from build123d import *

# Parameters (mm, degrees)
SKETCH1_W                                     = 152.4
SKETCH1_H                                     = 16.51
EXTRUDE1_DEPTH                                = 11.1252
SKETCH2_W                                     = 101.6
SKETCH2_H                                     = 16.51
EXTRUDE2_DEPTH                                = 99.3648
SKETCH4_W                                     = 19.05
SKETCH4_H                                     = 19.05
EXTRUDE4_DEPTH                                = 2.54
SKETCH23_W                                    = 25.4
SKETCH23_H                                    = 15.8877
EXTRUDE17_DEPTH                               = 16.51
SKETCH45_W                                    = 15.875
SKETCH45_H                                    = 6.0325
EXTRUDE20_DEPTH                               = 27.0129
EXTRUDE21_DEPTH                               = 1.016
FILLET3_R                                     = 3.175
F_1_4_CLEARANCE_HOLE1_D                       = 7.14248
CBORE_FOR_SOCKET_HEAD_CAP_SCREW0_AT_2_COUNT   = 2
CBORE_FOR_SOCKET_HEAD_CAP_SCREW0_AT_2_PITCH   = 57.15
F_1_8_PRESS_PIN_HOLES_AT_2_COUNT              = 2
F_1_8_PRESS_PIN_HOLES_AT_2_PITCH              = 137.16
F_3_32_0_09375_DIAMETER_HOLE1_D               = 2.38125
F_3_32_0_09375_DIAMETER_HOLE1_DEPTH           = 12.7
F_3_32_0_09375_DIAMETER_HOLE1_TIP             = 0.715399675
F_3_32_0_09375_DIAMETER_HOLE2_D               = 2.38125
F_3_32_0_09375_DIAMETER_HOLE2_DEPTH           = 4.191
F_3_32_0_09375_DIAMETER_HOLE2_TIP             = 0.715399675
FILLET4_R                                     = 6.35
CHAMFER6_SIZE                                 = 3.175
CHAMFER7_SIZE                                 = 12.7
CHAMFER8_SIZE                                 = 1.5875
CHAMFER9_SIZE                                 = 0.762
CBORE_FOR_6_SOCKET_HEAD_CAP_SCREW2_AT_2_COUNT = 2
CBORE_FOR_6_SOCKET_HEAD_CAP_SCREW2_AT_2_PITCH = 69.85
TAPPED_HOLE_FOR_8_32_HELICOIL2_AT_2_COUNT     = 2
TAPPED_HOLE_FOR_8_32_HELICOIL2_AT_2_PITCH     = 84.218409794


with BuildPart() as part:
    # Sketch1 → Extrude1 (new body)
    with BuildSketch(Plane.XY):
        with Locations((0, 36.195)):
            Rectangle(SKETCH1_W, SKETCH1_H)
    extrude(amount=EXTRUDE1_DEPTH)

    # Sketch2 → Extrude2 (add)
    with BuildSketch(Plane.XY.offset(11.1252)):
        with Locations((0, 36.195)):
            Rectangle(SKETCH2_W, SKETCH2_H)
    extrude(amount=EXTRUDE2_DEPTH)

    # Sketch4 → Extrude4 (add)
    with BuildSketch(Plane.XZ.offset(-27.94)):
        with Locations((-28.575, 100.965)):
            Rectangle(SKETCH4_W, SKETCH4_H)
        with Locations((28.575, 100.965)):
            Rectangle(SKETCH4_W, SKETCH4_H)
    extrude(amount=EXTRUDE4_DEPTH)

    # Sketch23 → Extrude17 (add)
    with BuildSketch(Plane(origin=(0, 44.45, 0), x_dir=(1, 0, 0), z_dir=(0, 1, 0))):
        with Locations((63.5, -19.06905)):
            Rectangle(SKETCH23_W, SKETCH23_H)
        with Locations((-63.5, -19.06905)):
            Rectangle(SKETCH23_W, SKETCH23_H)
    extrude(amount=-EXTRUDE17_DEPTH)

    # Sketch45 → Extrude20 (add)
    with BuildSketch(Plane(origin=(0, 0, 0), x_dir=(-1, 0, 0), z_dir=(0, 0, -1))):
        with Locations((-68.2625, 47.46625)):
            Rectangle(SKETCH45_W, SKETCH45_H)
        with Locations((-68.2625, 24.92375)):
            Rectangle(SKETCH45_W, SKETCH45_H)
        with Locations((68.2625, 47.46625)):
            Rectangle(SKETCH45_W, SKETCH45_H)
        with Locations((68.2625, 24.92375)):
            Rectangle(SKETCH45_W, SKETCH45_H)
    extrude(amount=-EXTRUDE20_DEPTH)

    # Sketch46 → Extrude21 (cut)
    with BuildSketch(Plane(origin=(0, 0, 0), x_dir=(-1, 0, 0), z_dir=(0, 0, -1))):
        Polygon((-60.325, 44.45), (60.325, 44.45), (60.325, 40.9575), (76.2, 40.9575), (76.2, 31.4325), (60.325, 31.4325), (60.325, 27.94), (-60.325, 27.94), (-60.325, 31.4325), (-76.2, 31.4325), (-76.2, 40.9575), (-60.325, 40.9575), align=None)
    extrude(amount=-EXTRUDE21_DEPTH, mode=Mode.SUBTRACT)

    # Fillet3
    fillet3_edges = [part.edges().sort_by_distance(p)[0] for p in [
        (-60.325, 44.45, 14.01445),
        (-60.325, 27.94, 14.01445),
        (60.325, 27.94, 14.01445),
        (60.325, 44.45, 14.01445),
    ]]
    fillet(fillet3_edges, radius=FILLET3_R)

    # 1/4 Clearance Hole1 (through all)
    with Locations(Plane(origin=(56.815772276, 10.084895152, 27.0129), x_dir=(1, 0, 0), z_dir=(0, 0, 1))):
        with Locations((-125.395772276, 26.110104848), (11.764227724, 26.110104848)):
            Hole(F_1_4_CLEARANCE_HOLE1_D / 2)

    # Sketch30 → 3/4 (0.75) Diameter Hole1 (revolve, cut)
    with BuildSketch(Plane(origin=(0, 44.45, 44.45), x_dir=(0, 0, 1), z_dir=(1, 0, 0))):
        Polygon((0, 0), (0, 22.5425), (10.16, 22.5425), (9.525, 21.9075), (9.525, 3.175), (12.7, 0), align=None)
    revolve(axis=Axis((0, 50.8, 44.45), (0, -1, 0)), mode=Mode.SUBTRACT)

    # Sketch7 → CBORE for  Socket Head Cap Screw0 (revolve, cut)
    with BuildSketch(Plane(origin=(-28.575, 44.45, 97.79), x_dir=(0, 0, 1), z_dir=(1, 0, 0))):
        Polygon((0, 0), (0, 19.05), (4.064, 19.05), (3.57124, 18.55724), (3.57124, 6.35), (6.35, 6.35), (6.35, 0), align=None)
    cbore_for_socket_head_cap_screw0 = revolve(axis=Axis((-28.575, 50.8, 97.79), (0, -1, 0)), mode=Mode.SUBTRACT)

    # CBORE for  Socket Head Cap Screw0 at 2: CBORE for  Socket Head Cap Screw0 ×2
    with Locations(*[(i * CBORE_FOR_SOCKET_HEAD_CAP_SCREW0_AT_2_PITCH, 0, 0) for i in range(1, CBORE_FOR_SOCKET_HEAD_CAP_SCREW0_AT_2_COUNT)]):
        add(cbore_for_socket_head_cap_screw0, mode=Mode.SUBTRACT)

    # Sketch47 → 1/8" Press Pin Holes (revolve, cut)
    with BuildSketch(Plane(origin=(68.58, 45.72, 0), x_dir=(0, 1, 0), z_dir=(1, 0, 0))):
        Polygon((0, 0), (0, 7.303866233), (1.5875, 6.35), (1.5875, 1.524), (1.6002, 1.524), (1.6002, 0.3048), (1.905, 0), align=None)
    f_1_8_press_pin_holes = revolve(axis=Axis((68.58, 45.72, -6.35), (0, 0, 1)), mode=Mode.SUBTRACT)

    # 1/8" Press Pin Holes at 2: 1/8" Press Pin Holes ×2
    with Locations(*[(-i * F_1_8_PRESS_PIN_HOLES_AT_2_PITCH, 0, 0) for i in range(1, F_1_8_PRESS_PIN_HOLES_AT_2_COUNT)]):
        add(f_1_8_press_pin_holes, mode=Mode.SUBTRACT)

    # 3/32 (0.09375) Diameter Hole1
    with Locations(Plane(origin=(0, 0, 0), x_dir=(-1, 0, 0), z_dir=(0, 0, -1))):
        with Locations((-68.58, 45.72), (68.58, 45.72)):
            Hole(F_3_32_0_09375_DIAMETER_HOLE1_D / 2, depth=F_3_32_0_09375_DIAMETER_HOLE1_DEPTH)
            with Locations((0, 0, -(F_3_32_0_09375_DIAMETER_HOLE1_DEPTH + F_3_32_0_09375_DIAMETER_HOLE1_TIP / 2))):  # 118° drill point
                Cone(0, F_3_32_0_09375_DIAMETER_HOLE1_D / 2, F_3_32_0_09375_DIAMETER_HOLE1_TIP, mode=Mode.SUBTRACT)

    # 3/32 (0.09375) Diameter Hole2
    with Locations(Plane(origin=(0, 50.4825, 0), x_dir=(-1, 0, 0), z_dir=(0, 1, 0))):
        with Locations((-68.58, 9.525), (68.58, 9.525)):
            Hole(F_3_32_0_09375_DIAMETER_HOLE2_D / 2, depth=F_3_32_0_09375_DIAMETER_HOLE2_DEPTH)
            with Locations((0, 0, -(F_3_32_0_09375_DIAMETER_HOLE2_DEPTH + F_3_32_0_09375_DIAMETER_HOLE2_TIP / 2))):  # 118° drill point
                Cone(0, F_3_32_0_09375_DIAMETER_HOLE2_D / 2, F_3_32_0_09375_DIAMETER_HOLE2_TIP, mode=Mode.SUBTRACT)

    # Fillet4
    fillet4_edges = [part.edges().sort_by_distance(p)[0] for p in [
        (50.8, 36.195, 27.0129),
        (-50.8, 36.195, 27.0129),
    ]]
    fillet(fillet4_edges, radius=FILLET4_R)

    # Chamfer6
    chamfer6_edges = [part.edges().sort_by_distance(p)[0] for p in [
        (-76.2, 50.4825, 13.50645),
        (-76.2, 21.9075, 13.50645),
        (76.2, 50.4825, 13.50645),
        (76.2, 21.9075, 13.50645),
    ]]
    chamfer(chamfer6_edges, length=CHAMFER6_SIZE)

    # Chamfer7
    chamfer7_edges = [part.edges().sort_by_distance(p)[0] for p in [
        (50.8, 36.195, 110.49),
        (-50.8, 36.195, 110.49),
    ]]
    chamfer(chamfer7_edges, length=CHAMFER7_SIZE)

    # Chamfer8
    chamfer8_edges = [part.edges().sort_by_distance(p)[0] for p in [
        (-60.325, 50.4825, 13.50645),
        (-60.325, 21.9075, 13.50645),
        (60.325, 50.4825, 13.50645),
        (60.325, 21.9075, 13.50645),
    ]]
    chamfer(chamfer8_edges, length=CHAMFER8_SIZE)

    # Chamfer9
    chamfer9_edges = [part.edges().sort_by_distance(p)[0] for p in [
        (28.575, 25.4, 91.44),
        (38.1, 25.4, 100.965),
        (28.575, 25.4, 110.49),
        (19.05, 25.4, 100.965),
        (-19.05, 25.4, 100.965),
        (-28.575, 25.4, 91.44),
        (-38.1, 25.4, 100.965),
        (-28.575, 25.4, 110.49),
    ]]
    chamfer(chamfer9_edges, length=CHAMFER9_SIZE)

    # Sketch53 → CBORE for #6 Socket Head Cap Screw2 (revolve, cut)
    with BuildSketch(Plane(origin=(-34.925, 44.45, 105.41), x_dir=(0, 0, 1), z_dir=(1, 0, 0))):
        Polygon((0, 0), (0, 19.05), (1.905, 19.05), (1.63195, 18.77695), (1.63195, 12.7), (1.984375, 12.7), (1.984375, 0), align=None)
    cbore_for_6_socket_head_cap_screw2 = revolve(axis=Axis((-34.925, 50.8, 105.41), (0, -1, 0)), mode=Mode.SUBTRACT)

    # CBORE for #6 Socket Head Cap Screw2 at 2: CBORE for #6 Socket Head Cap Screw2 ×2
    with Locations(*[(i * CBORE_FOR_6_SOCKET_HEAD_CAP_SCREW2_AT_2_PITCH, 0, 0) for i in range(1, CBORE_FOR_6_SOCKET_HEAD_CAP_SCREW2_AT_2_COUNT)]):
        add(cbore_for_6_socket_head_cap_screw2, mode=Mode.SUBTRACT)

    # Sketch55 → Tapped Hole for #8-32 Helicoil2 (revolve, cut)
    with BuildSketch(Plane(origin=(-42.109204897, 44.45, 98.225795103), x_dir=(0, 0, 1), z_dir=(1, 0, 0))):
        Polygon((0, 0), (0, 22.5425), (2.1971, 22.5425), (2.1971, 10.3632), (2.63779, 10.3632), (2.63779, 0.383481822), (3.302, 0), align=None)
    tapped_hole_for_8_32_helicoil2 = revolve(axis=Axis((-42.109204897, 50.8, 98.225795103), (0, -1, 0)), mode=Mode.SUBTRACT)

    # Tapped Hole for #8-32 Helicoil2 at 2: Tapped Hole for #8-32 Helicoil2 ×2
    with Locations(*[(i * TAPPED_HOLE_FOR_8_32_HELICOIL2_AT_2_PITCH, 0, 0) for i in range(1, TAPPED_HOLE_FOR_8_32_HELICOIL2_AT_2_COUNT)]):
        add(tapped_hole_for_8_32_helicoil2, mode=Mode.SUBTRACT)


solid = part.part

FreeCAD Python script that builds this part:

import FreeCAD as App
import Part
import Sketcher

V = App.Vector
Q = App.Units.Quantity


def edges_at(feature, points):
    """Names of the edges that pass closest to the given points."""
    edges = feature.Shape.Edges
    near = lambda p: min(range(len(edges)), key=lambda i: edges[i].distToShape(Part.Vertex(*p))[0])
    return sorted({f"Edge{near(p) + 1}" for p in points})


def add_polygon(sketch, points):
    """Adds a closed chain of lines whose ends are joined by coincident constraints."""
    first, n = sketch.GeometryCount, len(points)
    for a, b in zip(points, points[1:] + points[:1]):
        sketch.addGeometry(Part.LineSegment(App.Vector(*a, 0), App.Vector(*b, 0)), False)
    for i in range(n):
        sketch.addConstraint(Sketcher.Constraint("Coincident", first + i, 2, first + (i + 1) % n, 1))

doc = App.newDocument("Part")
params = doc.addObject("Spreadsheet::Sheet", "Params")
for row, (alias, value) in enumerate([
    ("sketch1_width", "6 in"),
    ("sketch1_height", "0.65 in"),
    ("pad1_length", "0.438 in"),
    ("sketch2_width", "4 in"),
    ("sketch2_height", "0.65 in"),
    ("pad2_length", "3.912 in"),
    ("sketch3_width", "0.75 in"),
    ("pad3_length", "0.1 in"),
    ("sketch4_width", "1 in"),
    ("pad4_length", "0.65 in"),
    ("sketch5_width", "0.625 in"),
    ("pad5_length", "1.0635 in"),
    ("sketch6_width", "4.75 in"),
    ("sketch6_height", "0.375 in"),
    ("pocket1_length", "0.04 in"),
    ("fillet_radius", "0.125 in"),
    ("hole_diameter", "0.2812 in"),
    ("sketch8_height", "0.5 in"),
    ("sketch8_height2", "0.4 in"),
    ("groove_angle", "360 deg"),
    ("sketch9_width", "0.75 in"),
    ("sketch9_width2", "0.25 in"),
    ("sketch9_height", "0.16 in"),
    ("groove2_angle", "360 deg"),
    ("linearpattern_pitch", "2.25 in"),
    ("sketch10_height", "0.19 in"),
    ("sketch10_width", "0.075 in"),
    ("sketch10_height2", "0.048 in"),
    ("groove3_angle", "360 deg"),
    ("linearpattern2_pitch", "5.4 in"),
    ("sketch11_diameter", "0.09375 in"),
    ("hole2_diameter", "0.09375 in"),
    ("hole2_depth", "0.5 in"),
    ("sketch12_diameter", "0.09375 in"),
    ("hole3_diameter", "0.09375 in"),
    ("hole3_depth", "0.165 in"),
    ("fillet2_radius", "0.25 in"),
    ("chamfer_size", "0.125 in"),
    ("chamfer2_size", "0.5 in"),
    ("chamfer3_size", "0.0625 in"),
    ("chamfer4_size", "0.03 in"),
    ("sketch13_width", "0.5 in"),
    ("sketch13_width2", "0.75 in"),
    ("sketch13_height", "0.078125 in"),
    ("sketch13_height2", "0.075 in"),
    ("groove4_angle", "360 deg"),
    ("linearpattern3_pitch", "2.75 in"),
    ("sketch14_height", "0.13 in"),
    ("groove5_angle", "360 deg"),
    ("linearpattern4_pitch", "84.21841 mm"),
], start=1):
    params.set(f"A{row}", alias)
    params.set(f"B{row}", "=" + value)
    params.setAlias(f"B{row}", alias)

body = doc.addObject("PartDesign::Body", "Body")

# Sketch on XY plane
sketch1 = body.newObject("Sketcher::SketchObject", "Sketch")
sketch1.AttachmentSupport = (doc.getObject("XY_Plane"), [""])
sketch1.MapMode = "FlatFace"
add_polygon(sketch1, [(-76, 44), (-76, 28), (76, 28), (76, 44)])  # lines 0-3
sketch1.addConstraint(Sketcher.Constraint("Vertical", 0))
sketch1.addConstraint(Sketcher.Constraint("Horizontal", 1))
sketch1.addConstraint(Sketcher.Constraint("Vertical", 2))
sketch1.addConstraint(Sketcher.Constraint("Horizontal", 3))
sketch1.addConstraint(Sketcher.Constraint("DistanceX", 1, 1, 1, 2, Q("6 in")))
sketch1.addConstraint(Sketcher.Constraint("DistanceX", 0, 2, -1, 1, Q("3 in")))
sketch1.addConstraint(Sketcher.Constraint("DistanceY", 0, 2, 0, 1, Q("0.65 in")))
sketch1.addConstraint(Sketcher.Constraint("DistanceY", -1, 1, 0, 2, Q("1.1 in")))
sketch1.setExpression("Constraints[8]", "Params.sketch1_width")
sketch1.setExpression("Constraints[10]", "Params.sketch1_height")
pad1 = body.newObject("PartDesign::Pad", "Pad")
pad1.Profile = sketch1
pad1.setExpression("Length", "Params.pad1_length")

# Sketch on XY plane
sketch2 = body.newObject("Sketcher::SketchObject", "Sketch001")
sketch2.AttachmentSupport = (doc.getObject("XY_Plane"), [""])
sketch2.MapMode = "FlatFace"
sketch2.AttachmentOffset = App.Placement(V(0, 0, 0.438 * 25.4), App.Rotation())
add_polygon(sketch2, [(-51, 44), (-51, 28), (51, 28), (51, 44)])  # lines 0-3
sketch2.addConstraint(Sketcher.Constraint("Vertical", 0))
sketch2.addConstraint(Sketcher.Constraint("Horizontal", 1))
sketch2.addConstraint(Sketcher.Constraint("Vertical", 2))
sketch2.addConstraint(Sketcher.Constraint("Horizontal", 3))
sketch2.addConstraint(Sketcher.Constraint("DistanceX", 1, 1, 1, 2, Q("4 in")))
sketch2.addConstraint(Sketcher.Constraint("DistanceX", 0, 2, -1, 1, Q("2 in")))
sketch2.addConstraint(Sketcher.Constraint("DistanceY", 0, 2, 0, 1, Q("0.65 in")))
sketch2.addConstraint(Sketcher.Constraint("DistanceY", -1, 1, 0, 2, Q("1.1 in")))
sketch2.setExpression("Constraints[8]", "Params.sketch2_width")
sketch2.setExpression("Constraints[10]", "Params.sketch2_height")
pad2 = body.newObject("PartDesign::Pad", "Pad001")
pad2.Profile = sketch2
pad2.setExpression("Length", "Params.pad2_length")

# Sketch on XZ plane
sketch3 = body.newObject("Sketcher::SketchObject", "Sketch002")
sketch3.AttachmentSupport = (doc.getObject("XZ_Plane"), [""])
sketch3.MapMode = "FlatFace"
sketch3.AttachmentOffset = App.Placement(V(0, 0, -1.1 * 25.4), App.Rotation())
add_polygon(sketch3, [(-38, 110), (-38, 91), (-19, 91), (-19, 110)])  # lines 0-3
add_polygon(sketch3, [(19, 110), (19, 91), (38, 91), (38, 110)])  # lines 4-7
sketch3.addConstraint(Sketcher.Constraint("Vertical", 0))
sketch3.addConstraint(Sketcher.Constraint("Horizontal", 1))
sketch3.addConstraint(Sketcher.Constraint("Vertical", 2))
sketch3.addConstraint(Sketcher.Constraint("Horizontal", 3))
sketch3.addConstraint(Sketcher.Constraint("Vertical", 4))
sketch3.addConstraint(Sketcher.Constraint("Horizontal", 5))
sketch3.addConstraint(Sketcher.Constraint("Vertical", 6))
sketch3.addConstraint(Sketcher.Constraint("Horizontal", 7))
sketch3.addConstraint(Sketcher.Constraint("Symmetric", 1, 2, 4, 2, -2))
sketch3.addConstraint(Sketcher.Constraint("Symmetric", 3, 2, 6, 2, -2))
sketch3.addConstraint(Sketcher.Constraint("Equal", 7, 0))
sketch3.addConstraint(Sketcher.Constraint("DistanceX", 0, 2, 5, 2, Q("3 in")))
sketch3.addConstraint(Sketcher.Constraint("DistanceX", 1, 1, 1, 2, Q("0.75 in")))
sketch3.addConstraint(Sketcher.Constraint("DistanceY", -1, 1, 0, 2, Q("3.6 in")))
sketch3.setExpression("Constraints[20]", "Params.sketch3_width")
pad3 = body.newObject("PartDesign::Pad", "Pad002")
pad3.Profile = sketch3
pad3.setExpression("Length", "Params.pad3_length")

# Sketch on XZ plane
sketch4 = body.newObject("Sketcher::SketchObject", "Sketch003")
sketch4.AttachmentSupport = (doc.getObject("XZ_Plane"), [""])
sketch4.MapMode = "FlatFace"
sketch4.AttachmentOffset = App.Placement(V(0, 0, -1.75 * 25.4), App.Rotation())
add_polygon(sketch4, [(51, 11), (51, 27), (76, 27), (76, 11)])  # lines 0-3
add_polygon(sketch4, [(-76, 11), (-76, 27), (-51, 27), (-51, 11)])  # lines 4-7
sketch4.addConstraint(Sketcher.Constraint("Vertical", 0))
sketch4.addConstraint(Sketcher.Constraint("Horizontal", 1))
sketch4.addConstraint(Sketcher.Constraint("Vertical", 2))
sketch4.addConstraint(Sketcher.Constraint("Horizontal", 3))
sketch4.addConstraint(Sketcher.Constraint("Vertical", 4))
sketch4.addConstraint(Sketcher.Constraint("Horizontal", 5))
sketch4.addConstraint(Sketcher.Constraint("Vertical", 6))
sketch4.addConstraint(Sketcher.Constraint("Horizontal", 7))
sketch4.addConstraint(Sketcher.Constraint("Symmetric", 1, 2, 4, 2, -2))
sketch4.addConstraint(Sketcher.Constraint("Symmetric", 3, 2, 6, 2, -2))
sketch4.addConstraint(Sketcher.Constraint("DistanceX", 1, 1, 1, 2, Q("1 in")))
sketch4.addConstraint(Sketcher.Constraint("DistanceX", -1, 1, 0, 2, Q("2 in")))
sketch4.addConstraint(Sketcher.Constraint("DistanceY", 0, 1, 0, 2, Q("0.6255 in")))
sketch4.addConstraint(Sketcher.Constraint("DistanceY", -1, 1, 2, 2, Q("0.438 in")))
sketch4.setExpression("Constraints[18]", "Params.sketch4_width")
pad4 = body.newObject("PartDesign::Pad", "Pad003")
pad4.Profile = sketch4
pad4.setExpression("Length", "Params.pad4_length")

# Sketch on XY plane
sketch5 = body.newObject("Sketcher::SketchObject", "Sketch004")
sketch5.AttachmentSupport = (doc.getObject("XY_Plane"), [""])
sketch5.MapMode = "FlatFace"
add_polygon(sketch5, [(76, 50), (76, 44), (60, 44), (60, 50)])  # lines 0-3
add_polygon(sketch5, [(76, 28), (76, 22), (60, 22), (60, 28)])  # lines 4-7
add_polygon(sketch5, [(-60, 50), (-60, 44), (-76, 44), (-76, 50)])  # lines 8-11
add_polygon(sketch5, [(-60, 28), (-60, 22), (-76, 22), (-76, 28)])  # lines 12-15
sketch5.addConstraint(Sketcher.Constraint("Vertical", 0))
sketch5.addConstraint(Sketcher.Constraint("Horizontal", 1))
sketch5.addConstraint(Sketcher.Constraint("Vertical", 2))
sketch5.addConstraint(Sketcher.Constraint("Horizontal", 3))
sketch5.addConstraint(Sketcher.Constraint("Vertical", 4))
sketch5.addConstraint(Sketcher.Constraint("Horizontal", 5))
sketch5.addConstraint(Sketcher.Constraint("Vertical", 6))
sketch5.addConstraint(Sketcher.Constraint("Horizontal", 7))
sketch5.addConstraint(Sketcher.Constraint("Vertical", 8))
sketch5.addConstraint(Sketcher.Constraint("Horizontal", 9))
sketch5.addConstraint(Sketcher.Constraint("Vertical", 10))
sketch5.addConstraint(Sketcher.Constraint("Horizontal", 11))
sketch5.addConstraint(Sketcher.Constraint("Vertical", 12))
sketch5.addConstraint(Sketcher.Constraint("Horizontal", 13))
sketch5.addConstraint(Sketcher.Constraint("Vertical", 14))
sketch5.addConstraint(Sketcher.Constraint("Horizontal", 15))
sketch5.addConstraint(Sketcher.Constraint("Symmetric", 1, 2, 8, 2, -2))
sketch5.addConstraint(Sketcher.Constraint("Symmetric", 3, 2, 10, 2, -2))
sketch5.addConstraint(Sketcher.Constraint("Symmetric", 5, 2, 12, 2, -2))
sketch5.addConstraint(Sketcher.Constraint("Symmetric", 7, 2, 14, 2, -2))
sketch5.addConstraint(Sketcher.Constraint("Vertical", 3, 2, 4, 2))
sketch5.addConstraint(Sketcher.Constraint("Vertical", 2, 2, 5, 2))
sketch5.addConstraint(Sketcher.Constraint("Equal", 2, 4))
sketch5.addConstraint(Sketcher.Constraint("DistanceX", -1, 1, 0, 2, Q("3 in")))
sketch5.addConstraint(Sketcher.Constraint("DistanceY", -1, 1, 6, 2, Q("1.1 in")))
sketch5.addConstraint(Sketcher.Constraint("DistanceX", 1, 2, 1, 1, Q("0.625 in")))
sketch5.addConstraint(Sketcher.Constraint("DistanceY", -1, 1, 0, 2, Q("1.75 in")))
sketch5.addConstraint(Sketcher.Constraint("DistanceY", 0, 2, 0, 1, Q("0.2375 in")))
sketch5.setExpression("Constraints[41]", "Params.sketch5_width")
pad5 = body.newObject("PartDesign::Pad", "Pad004")
pad5.Profile = sketch5
pad5.setExpression("Length", "Params.pad5_length")

# Sketch on XY plane
sketch6 = body.newObject("Sketcher::SketchObject", "Sketch005")
sketch6.AttachmentSupport = (doc.getObject("XY_Plane"), [""])
sketch6.MapMode = "FlatFace"
add_polygon(sketch6, [(-60.3, 44.5), (60.3, 44.5), (60.3, 41), (76.2, 41), (76.2, 31.4), (60.3, 31.4), (60.3, 27.9), (-60.3, 27.9), (-60.3, 31.4), (-76.2, 31.4), (-76.2, 41), (-60.3, 41)])  # lines 0-11
sketch6.addConstraint(Sketcher.Constraint("Horizontal", 0))
sketch6.addConstraint(Sketcher.Constraint("Vertical", 1))
sketch6.addConstraint(Sketcher.Constraint("Horizontal", 2))
sketch6.addConstraint(Sketcher.Constraint("Vertical", 3))
sketch6.addConstraint(Sketcher.Constraint("Horizontal", 4))
sketch6.addConstraint(Sketcher.Constraint("Vertical", 5))
sketch6.addConstraint(Sketcher.Constraint("Horizontal", 6))
sketch6.addConstraint(Sketcher.Constraint("Vertical", 7))
sketch6.addConstraint(Sketcher.Constraint("Horizontal", 8))
sketch6.addConstraint(Sketcher.Constraint("Vertical", 9))
sketch6.addConstraint(Sketcher.Constraint("Horizontal", 10))
sketch6.addConstraint(Sketcher.Constraint("Vertical", 11))
sketch6.addConstraint(Sketcher.Constraint("Symmetric", 4, 2, 7, 2, -2))
sketch6.addConstraint(Sketcher.Constraint("Symmetric", 2, 2, 9, 2, -2))
sketch6.addConstraint(Sketcher.Constraint("Vertical", 1, 2, 4, 2))
sketch6.addConstraint(Sketcher.Constraint("Vertical", 7, 2, 10, 2))
sketch6.addConstraint(Sketcher.Constraint("Equal", 1, 5))
sketch6.addConstraint(Sketcher.Constraint("DistanceX", -1, 1, 2, 2, Q("3 in")))
sketch6.addConstraint(Sketcher.Constraint("DistanceX", 0, 1, 0, 2, Q("4.75 in")))
sketch6.addConstraint(Sketcher.Constraint("DistanceY", -1, 1, 5, 2, Q("1.1 in")))
sketch6.addConstraint(Sketcher.Constraint("DistanceY", 3, 2, 3, 1, Q("0.375 in")))
sketch6.addConstraint(Sketcher.Constraint("DistanceY", -1, 1, 0, 2, Q("1.75 in")))
sketch6.setExpression("Constraints[30]", "Params.sketch6_width")
sketch6.setExpression("Constraints[32]", "Params.sketch6_height")
pocket1 = body.newObject("PartDesign::Pocket", "Pocket")
pocket1.Profile = sketch6
pocket1.setExpression("Length", "Params.pocket1_length")
pocket1.Reversed = True
doc.recompute()

fillet = body.newObject("PartDesign::Fillet", "Fillet")
fillet.Base = (pocket1, edges_at(pocket1, [
    (-60.325, 44.45, 14.014),
    (-60.325, 27.94, 14.014),
    (60.325, 27.94, 14.014),
    (60.325, 44.45, 14.014),
]))
fillet.setExpression("Radius", "Params.fillet_radius")

# Sketch on XY plane
sketch7 = body.newObject("Sketcher::SketchObject", "Sketch006")
sketch7.AttachmentSupport = (doc.getObject("XY_Plane"), [""])
sketch7.MapMode = "FlatFace"
sketch7.AttachmentOffset = App.Placement(V(0, 0, 1.0635 * 25.4), App.Rotation())
sketch7.addGeometry(Part.Circle(V(-68.6, 36.2, 0), V(0, 0, 1), 3.6), False)
sketch7.addGeometry(Part.Circle(V(68.6, 36.2, 0), V(0, 0, 1), 3.6), False)
sketch7.addConstraint(Sketcher.Constraint("Equal", 0, 1))
sketch7.addConstraint(Sketcher.Constraint("Symmetric", 0, 3, 1, 3, -2))
sketch7.addConstraint(Sketcher.Constraint("Diameter", 0, Q("0.2812 in")))
sketch7.addConstraint(Sketcher.Constraint("DistanceX", 0, 3, -1, 1, Q("2.7 in")))
sketch7.addConstraint(Sketcher.Constraint("DistanceY", -1, 1, 0, 3, Q("1.425 in")))
doc.recompute()
hole = body.newObject("PartDesign::Hole", "Hole")
hole.Profile = sketch7
hole.ThreadType = "None"
hole.setExpression("Diameter", "Params.hole_diameter")
hole.DepthType = "ThroughAll"

# Sketch on YZ plane
sketch8 = body.newObject("Sketcher::SketchObject", "Sketch007")
sketch8.AttachmentSupport = (doc.getObject("YZ_Plane"), [""])
sketch8.MapMode = "FlatFace"
add_polygon(sketch8, [(21.9, 44.5), (44.5, 44.5), (44.5, 57.1), (41.3, 54), (22.5, 54), (21.9, 54.6)])  # lines 0-5
sketch8.addGeometry(Part.LineSegment(V(44.5, 44.5, 0), V(21.9, 44.5, 0)), True)  # axis
sketch8.addConstraint(Sketcher.Constraint("Horizontal", 0))
sketch8.addConstraint(Sketcher.Constraint("Vertical", 1))
sketch8.addConstraint(Sketcher.Constraint("Horizontal", 3))
sketch8.addConstraint(Sketcher.Constraint("Vertical", 5))
sketch8.addConstraint(Sketcher.Constraint("Horizontal", 6))
sketch8.addConstraint(Sketcher.Constraint("Coincident", 6, 1, 0, 2))
sketch8.addConstraint(Sketcher.Constraint("Perpendicular", 2, 4))
sketch8.addConstraint(Sketcher.Constraint("Vertical", 4, 2, 6, 2))
sketch8.addConstraint(Sketcher.Constraint("DistanceY", 1, 1, 1, 2, Q("0.5 in")))
sketch8.addConstraint(Sketcher.Constraint("DistanceY", 5, 2, 5, 1, Q("0.4 in")))
sketch8.addConstraint(Sketcher.Constraint("Angle", 2, Q("-135 deg")))
sketch8.addConstraint(Sketcher.Constraint("DistanceX", -1, 1, 0, 2, Q("1.75 in")))
sketch8.addConstraint(Sketcher.Constraint("DistanceY", -1, 1, 0, 2, Q("1.75 in")))
sketch8.addConstraint(Sketcher.Constraint("DistanceX", 0, 1, 0, 2, Q("0.8875 in")))
sketch8.addConstraint(Sketcher.Constraint("DistanceX", 3, 2, 3, 1, Q("0.7375 in")))
sketch8.setExpression("Constraints[14]", "Params.sketch8_height")
sketch8.setExpression("Constraints[15]", "Params.sketch8_height2")
groove = body.newObject("PartDesign::Groove", "Groove")
groove.Profile = sketch8
groove.ReferenceAxis = (sketch8, ["Axis0"])
groove.setExpression("Angle", "Params.groove_angle")

# Sketch on YZ plane
sketch9 = body.newObject("Sketcher::SketchObject", "Sketch008")
sketch9.AttachmentSupport = (doc.getObject("YZ_Plane"), [""])
sketch9.MapMode = "FlatFace"
sketch9.AttachmentOffset = App.Placement(V(0, 0, -1.125 * 25.4), App.Rotation())
add_polygon(sketch9, [(25.4, 97.8), (44.5, 97.8), (44.5, 104.1), (38.1, 104.1), (38.1, 101.4), (25.9, 101.4), (25.4, 101.9)])  # lines 0-6
sketch9.addGeometry(Part.LineSegment(V(44.5, 97.8, 0), V(25.4, 97.8, 0)), True)  # axis
sketch9.addConstraint(Sketcher.Constraint("Horizontal", 0))
sketch9.addConstraint(Sketcher.Constraint("Vertical", 1))
sketch9.addConstraint(Sketcher.Constraint("Horizontal", 2))
sketch9.addConstraint(Sketcher.Constraint("Vertical", 3))
sketch9.addConstraint(Sketcher.Constraint("Horizontal", 4))
sketch9.addConstraint(Sketcher.Constraint("Vertical", 6))
sketch9.addConstraint(Sketcher.Constraint("Horizontal", 7))
sketch9.addConstraint(Sketcher.Constraint("Coincident", 7, 1, 0, 2))
sketch9.addConstraint(Sketcher.Constraint("Vertical", 5, 2, 7, 2))
sketch9.addConstraint(Sketcher.Constraint("Equal", 2, 1))
sketch9.addConstraint(Sketcher.Constraint("DistanceX", -1, 1, 5, 2, Q("1 in")))
sketch9.addConstraint(Sketcher.Constraint("Angle", 5, Q("135 deg")))
sketch9.addConstraint(Sketcher.Constraint("DistanceX", 0, 1, 0, 2, Q("0.75 in")))
sketch9.addConstraint(Sketcher.Constraint("DistanceX", 2, 2, 2, 1, Q("0.25 in")))
sketch9.addConstraint(Sketcher.Constraint("DistanceY", 6, 2, 6, 1, Q("0.16 in")))
sketch9.addConstraint(Sketcher.Constraint("DistanceY", -1, 1, 1, 2, Q("4.1 in")))
sketch9.addConstraint(Sketcher.Constraint("DistanceX", 4, 2, 4, 1, Q("0.4806 in")))
sketch9.setExpression("Constraints[19]", "Params.sketch9_width")
sketch9.setExpression("Constraints[20]", "Params.sketch9_width2")
sketch9.setExpression("Constraints[21]", "Params.sketch9_height")
groove2 = body.newObject("PartDesign::Groove", "Groove001")
groove2.Profile = sketch9
groove2.ReferenceAxis = (sketch9, ["Axis0"])
groove2.setExpression("Angle", "Params.groove2_angle")
doc.recompute()

linearpattern = body.newObject("PartDesign::LinearPattern", "LinearPattern")
linearpattern.Originals = [groove2]
linearpattern.Direction = (doc.getObject("X_Axis"), [""])
linearpattern.Mode = "offset"
linearpattern.setExpression("Offset", "Params.linearpattern_pitch")
linearpattern.Occurrences = 2
body.Tip = linearpattern

# Sketch on YZ plane
sketch10 = body.newObject("Sketcher::SketchObject", "Sketch009")
sketch10.AttachmentSupport = (doc.getObject("YZ_Plane"), [""])
sketch10.MapMode = "FlatFace"
sketch10.AttachmentOffset = App.Placement(V(0, 0, 2.7 * 25.4), App.Rotation())
add_polygon(sketch10, [(45.72, 7.304), (45.72, 0), (47.625, 0), (47.32, 0.305), (47.32, 1.524), (47.307, 1.524), (47.307, 6.35)])  # lines 0-6
sketch10.addGeometry(Part.LineSegment(V(45.72, 0, 0), V(45.72, 7.304, 0)), True)  # axis
sketch10.addConstraint(Sketcher.Constraint("Vertical", 0))
sketch10.addConstraint(Sketcher.Constraint("Horizontal", 1))
sketch10.addConstraint(Sketcher.Constraint("Vertical", 3))
sketch10.addConstraint(Sketcher.Constraint("Horizontal", 4))
sketch10.addConstraint(Sketcher.Constraint("Vertical", 5))
sketch10.addConstraint(Sketcher.Constraint("Vertical", 7))
sketch10.addConstraint(Sketcher.Constraint("Coincident", 7, 1, 0, 2))
sketch10.addConstraint(Sketcher.Constraint("PointOnObject", 0, 2, -1))
sketch10.addConstraint(Sketcher.Constraint("Equal", 0, 7))
sketch10.addConstraint(Sketcher.Constraint("Angle", 2, Q("135 deg")))
sketch10.addConstraint(Sketcher.Constraint("Angle", 6, Q("149 deg")))
sketch10.addConstraint(Sketcher.Constraint("DistanceY", 5, 1, 5, 2, Q("0.19 in")))
sketch10.addConstraint(Sketcher.Constraint("DistanceX", -1, 1, 0, 2, Q("1.8 in")))
sketch10.addConstraint(Sketcher.Constraint("DistanceX", 1, 1, 1, 2, Q("0.075 in")))
sketch10.addConstraint(Sketcher.Constraint("DistanceY", 3, 1, 3, 2, Q("0.048 in")))
sketch10.addConstraint(Sketcher.Constraint("DistanceY", -1, 1, 3, 2, Q("0.06 in")))
sketch10.addConstraint(Sketcher.Constraint("DistanceX", 4, 2, 4, 1, Q("0.0005 in")))
sketch10.setExpression("Constraints[18]", "Params.sketch10_height")
sketch10.setExpression("Constraints[20]", "Params.sketch10_width")
sketch10.setExpression("Constraints[21]", "Params.sketch10_height2")
groove3 = body.newObject("PartDesign::Groove", "Groove002")
groove3.Profile = sketch10
groove3.ReferenceAxis = (sketch10, ["Axis0"])
groove3.setExpression("Angle", "Params.groove3_angle")
doc.recompute()

linearpattern2 = body.newObject("PartDesign::LinearPattern", "LinearPattern001")
linearpattern2.Originals = [groove3]
linearpattern2.Direction = (doc.getObject("X_Axis"), [""])
linearpattern2.Mode = "offset"
linearpattern2.setExpression("Offset", "Params.linearpattern2_pitch")
linearpattern2.Occurrences = 2
linearpattern2.Reversed = True
body.Tip = linearpattern2

# Sketch on XY plane
sketch11 = body.newObject("Sketcher::SketchObject", "Sketch010")
sketch11.AttachmentSupport = (doc.getObject("XY_Plane"), [""])
sketch11.MapMode = "FlatFace"
sketch11.addGeometry(Part.Circle(V(68.6, 45.7, 0), V(0, 0, 1), 1.2), False)
sketch11.addGeometry(Part.Circle(V(-68.6, 45.7, 0), V(0, 0, 1), 1.2), False)
sketch11.addConstraint(Sketcher.Constraint("Equal", 0, 1))
sketch11.addConstraint(Sketcher.Constraint("Symmetric", 0, 3, 1, 3, -2))
sketch11.addConstraint(Sketcher.Constraint("Diameter", 0, Q("0.09375 in")))
sketch11.addConstraint(Sketcher.Constraint("DistanceX", -1, 1, 0, 3, Q("2.7 in")))
sketch11.addConstraint(Sketcher.Constraint("DistanceY", -1, 1, 0, 3, Q("1.8 in")))
sketch11.setExpression("Constraints[2]", "Params.sketch11_diameter")
doc.recompute()
hole2 = body.newObject("PartDesign::Hole", "Hole001")
hole2.Profile = sketch11
hole2.ThreadType = "None"
hole2.setExpression("Diameter", "Params.hole2_diameter")
hole2.DepthType = "Dimension"
hole2.setExpression("Depth", "Params.hole2_depth")
hole2.DrillPoint = "Angled"
hole2.DrillPointAngle = 118
hole2.Reversed = True

# Sketch on XZ plane
sketch12 = body.newObject("Sketcher::SketchObject", "Sketch011")
sketch12.AttachmentSupport = (doc.getObject("XZ_Plane"), [""])
sketch12.MapMode = "FlatFace"
sketch12.AttachmentOffset = App.Placement(V(0, 0, -1.9875 * 25.4), App.Rotation())
sketch12.addGeometry(Part.Circle(V(68.6, 9.5, 0), V(0, 0, 1), 1.2), False)
sketch12.addGeometry(Part.Circle(V(-68.6, 9.5, 0), V(0, 0, 1), 1.2), False)
sketch12.addConstraint(Sketcher.Constraint("Equal", 0, 1))
sketch12.addConstraint(Sketcher.Constraint("Symmetric", 0, 3, 1, 3, -2))
sketch12.addConstraint(Sketcher.Constraint("Diameter", 0, Q("0.09375 in")))
sketch12.addConstraint(Sketcher.Constraint("DistanceX", -1, 1, 0, 3, Q("2.7 in")))
sketch12.addConstraint(Sketcher.Constraint("DistanceY", -1, 1, 0, 3, Q("0.375 in")))
sketch12.setExpression("Constraints[2]", "Params.sketch12_diameter")
doc.recompute()
hole3 = body.newObject("PartDesign::Hole", "Hole002")
hole3.Profile = sketch12
hole3.ThreadType = "None"
hole3.setExpression("Diameter", "Params.hole3_diameter")
hole3.DepthType = "Dimension"
hole3.setExpression("Depth", "Params.hole3_depth")
hole3.DrillPoint = "Angled"
hole3.DrillPointAngle = 118
hole3.Reversed = True
doc.recompute()

fillet2 = body.newObject("PartDesign::Fillet", "Fillet001")
fillet2.Base = (hole3, edges_at(hole3, [(50.8, 36.195, 27.013), (-50.8, 36.195, 27.013)]))
fillet2.setExpression("Radius", "Params.fillet2_radius")
doc.recompute()

chamfer = body.newObject("PartDesign::Chamfer", "Chamfer")
chamfer.Base = (fillet2, edges_at(fillet2, [
    (-76.2, 50.483, 13.506),
    (-76.2, 21.907, 13.506),
    (76.2, 50.483, 13.506),
    (76.2, 21.907, 13.506),
]))
chamfer.setExpression("Size", "Params.chamfer_size")
doc.recompute()

chamfer2 = body.newObject("PartDesign::Chamfer", "Chamfer001")
chamfer2.Base = (chamfer, edges_at(chamfer, [(50.8, 36.195, 110.49), (-50.8, 36.195, 110.49)]))
chamfer2.setExpression("Size", "Params.chamfer2_size")
doc.recompute()

chamfer3 = body.newObject("PartDesign::Chamfer", "Chamfer002")
chamfer3.Base = (chamfer2, edges_at(chamfer2, [
    (-60.325, 50.483, 13.506),
    (-60.325, 21.907, 13.506),
    (60.325, 50.483, 13.506),
    (60.325, 21.907, 13.506),
]))
chamfer3.setExpression("Size", "Params.chamfer3_size")
doc.recompute()

chamfer4 = body.newObject("PartDesign::Chamfer", "Chamfer003")
chamfer4.Base = (chamfer3, edges_at(chamfer3, [
    (28.575, 25.4, 91.44),
    (38.1, 25.4, 100.965),
    (28.575, 25.4, 110.49),
    (19.05, 25.4, 100.965),
    (-19.05, 25.4, 100.965),
    (-28.575, 25.4, 91.44),
    (-38.1, 25.4, 100.965),
    (-28.575, 25.4, 110.49),
]))
chamfer4.setExpression("Size", "Params.chamfer4_size")

# Sketch on YZ plane
sketch13 = body.newObject("Sketcher::SketchObject", "Sketch012")
sketch13.AttachmentSupport = (doc.getObject("YZ_Plane"), [""])
sketch13.MapMode = "FlatFace"
sketch13.AttachmentOffset = App.Placement(V(0, 0, -1.375 * 25.4), App.Rotation())
add_polygon(sketch13, [(25.4, 105.41), (44.45, 105.41), (44.45, 107.39), (31.75, 107.39), (31.75, 107.04), (25.67, 107.04), (25.4, 107.31)])  # lines 0-6
sketch13.addGeometry(Part.LineSegment(V(44.45, 105.41, 0), V(25.4, 105.41, 0)), True)  # axis
sketch13.addConstraint(Sketcher.Constraint("Horizontal", 0))
sketch13.addConstraint(Sketcher.Constraint("Vertical", 1))
sketch13.addConstraint(Sketcher.Constraint("Horizontal", 2))
sketch13.addConstraint(Sketcher.Constraint("Vertical", 3))
sketch13.addConstraint(Sketcher.Constraint("Horizontal", 4))
sketch13.addConstraint(Sketcher.Constraint("Vertical", 6))
sketch13.addConstraint(Sketcher.Constraint("Horizontal", 7))
sketch13.addConstraint(Sketcher.Constraint("Coincident", 7, 1, 0, 2))
sketch13.addConstraint(Sketcher.Constraint("Vertical", 5, 2, 7, 2))
sketch13.addConstraint(Sketcher.Constraint("DistanceX", 2, 2, 2, 1, Q("0.5 in")))
sketch13.addConstraint(Sketcher.Constraint("DistanceX", -1, 1, 5, 2, Q("1 in")))
sketch13.addConstraint(Sketcher.Constraint("Angle", 5, Q("135 deg")))
sketch13.addConstraint(Sketcher.Constraint("DistanceX", 0, 1, 0, 2, Q("0.75 in")))
sketch13.addConstraint(Sketcher.Constraint("DistanceY", 1, 1, 1, 2, Q("0.078125 in")))
sketch13.addConstraint(Sketcher.Constraint("DistanceY", 6, 2, 6, 1, Q("0.075 in")))
sketch13.addConstraint(Sketcher.Constraint("DistanceY", -1, 1, 0, 2, Q("4.15 in")))
sketch13.addConstraint(Sketcher.Constraint("DistanceX", 4, 2, 4, 1, 6.07695))
sketch13.setExpression("Constraints[16]", "Params.sketch13_width")
sketch13.setExpression("Constraints[19]", "Params.sketch13_width2")
sketch13.setExpression("Constraints[20]", "Params.sketch13_height")
sketch13.setExpression("Constraints[21]", "Params.sketch13_height2")
groove4 = body.newObject("PartDesign::Groove", "Groove003")
groove4.Profile = sketch13
groove4.ReferenceAxis = (sketch13, ["Axis0"])
groove4.setExpression("Angle", "Params.groove4_angle")
doc.recompute()

linearpattern3 = body.newObject("PartDesign::LinearPattern", "LinearPattern002")
linearpattern3.Originals = [groove4]
linearpattern3.Direction = (doc.getObject("X_Axis"), [""])
linearpattern3.Mode = "offset"
linearpattern3.setExpression("Offset", "Params.linearpattern3_pitch")
linearpattern3.Occurrences = 2
body.Tip = linearpattern3

# Sketch on YZ plane
sketch14 = body.newObject("Sketcher::SketchObject", "Sketch013")
sketch14.AttachmentSupport = (doc.getObject("YZ_Plane"), [""])
sketch14.MapMode = "FlatFace"
sketch14.AttachmentOffset = App.Placement(V(0, 0, -42.109205), App.Rotation())
add_polygon(sketch14, [(21.91, 98.23), (44.45, 98.23), (44.45, 101.53), (44.07, 100.86), (34.09, 100.86), (34.09, 100.42), (21.91, 100.42)])  # lines 0-6
sketch14.addGeometry(Part.LineSegment(V(44.45, 98.23, 0), V(21.91, 98.23, 0)), True)  # axis
sketch14.addConstraint(Sketcher.Constraint("Horizontal", 0))
sketch14.addConstraint(Sketcher.Constraint("Vertical", 1))
sketch14.addConstraint(Sketcher.Constraint("Horizontal", 3))
sketch14.addConstraint(Sketcher.Constraint("Vertical", 4))
sketch14.addConstraint(Sketcher.Constraint("Horizontal", 5))
sketch14.addConstraint(Sketcher.Constraint("Vertical", 6))
sketch14.addConstraint(Sketcher.Constraint("Horizontal", 7))
sketch14.addConstraint(Sketcher.Constraint("Coincident", 7, 1, 0, 2))
sketch14.addConstraint(Sketcher.Constraint("Vertical", 5, 2, 7, 2))
sketch14.addConstraint(Sketcher.Constraint("Angle", 2, Q("-120 deg")))
sketch14.addConstraint(Sketcher.Constraint("DistanceY", 1, 1, 1, 2, Q("0.13 in")))
sketch14.addConstraint(Sketcher.Constraint("DistanceX", -1, 1, 0, 2, Q("1.75 in")))
sketch14.addConstraint(Sketcher.Constraint("DistanceX", 0, 1, 0, 2, Q("0.8875 in")))
sketch14.addConstraint(Sketcher.Constraint("DistanceX", 5, 2, 5, 1, Q("0.4795 in")))
sketch14.addConstraint(Sketcher.Constraint("DistanceY", 6, 2, 6, 1, Q("0.0865 in")))
sketch14.addConstraint(Sketcher.Constraint("DistanceX", 3, 2, 3, 1, 9.979718))
sketch14.addConstraint(Sketcher.Constraint("DistanceY", -1, 1, 0, 2, 98.225795))
sketch14.setExpression("Constraints[17]", "Params.sketch14_height")
groove5 = body.newObject("PartDesign::Groove", "Groove004")
groove5.Profile = sketch14
groove5.ReferenceAxis = (sketch14, ["Axis0"])
groove5.setExpression("Angle", "Params.groove5_angle")
doc.recompute()

linearpattern4 = body.newObject("PartDesign::LinearPattern", "LinearPattern003")
linearpattern4.Originals = [groove5]
linearpattern4.Direction = (doc.getObject("X_Axis"), [""])
linearpattern4.Mode = "offset"
linearpattern4.setExpression("Offset", "Params.linearpattern4_pitch")
linearpattern4.Occurrences = 2
body.Tip = linearpattern4

doc.recompute()
